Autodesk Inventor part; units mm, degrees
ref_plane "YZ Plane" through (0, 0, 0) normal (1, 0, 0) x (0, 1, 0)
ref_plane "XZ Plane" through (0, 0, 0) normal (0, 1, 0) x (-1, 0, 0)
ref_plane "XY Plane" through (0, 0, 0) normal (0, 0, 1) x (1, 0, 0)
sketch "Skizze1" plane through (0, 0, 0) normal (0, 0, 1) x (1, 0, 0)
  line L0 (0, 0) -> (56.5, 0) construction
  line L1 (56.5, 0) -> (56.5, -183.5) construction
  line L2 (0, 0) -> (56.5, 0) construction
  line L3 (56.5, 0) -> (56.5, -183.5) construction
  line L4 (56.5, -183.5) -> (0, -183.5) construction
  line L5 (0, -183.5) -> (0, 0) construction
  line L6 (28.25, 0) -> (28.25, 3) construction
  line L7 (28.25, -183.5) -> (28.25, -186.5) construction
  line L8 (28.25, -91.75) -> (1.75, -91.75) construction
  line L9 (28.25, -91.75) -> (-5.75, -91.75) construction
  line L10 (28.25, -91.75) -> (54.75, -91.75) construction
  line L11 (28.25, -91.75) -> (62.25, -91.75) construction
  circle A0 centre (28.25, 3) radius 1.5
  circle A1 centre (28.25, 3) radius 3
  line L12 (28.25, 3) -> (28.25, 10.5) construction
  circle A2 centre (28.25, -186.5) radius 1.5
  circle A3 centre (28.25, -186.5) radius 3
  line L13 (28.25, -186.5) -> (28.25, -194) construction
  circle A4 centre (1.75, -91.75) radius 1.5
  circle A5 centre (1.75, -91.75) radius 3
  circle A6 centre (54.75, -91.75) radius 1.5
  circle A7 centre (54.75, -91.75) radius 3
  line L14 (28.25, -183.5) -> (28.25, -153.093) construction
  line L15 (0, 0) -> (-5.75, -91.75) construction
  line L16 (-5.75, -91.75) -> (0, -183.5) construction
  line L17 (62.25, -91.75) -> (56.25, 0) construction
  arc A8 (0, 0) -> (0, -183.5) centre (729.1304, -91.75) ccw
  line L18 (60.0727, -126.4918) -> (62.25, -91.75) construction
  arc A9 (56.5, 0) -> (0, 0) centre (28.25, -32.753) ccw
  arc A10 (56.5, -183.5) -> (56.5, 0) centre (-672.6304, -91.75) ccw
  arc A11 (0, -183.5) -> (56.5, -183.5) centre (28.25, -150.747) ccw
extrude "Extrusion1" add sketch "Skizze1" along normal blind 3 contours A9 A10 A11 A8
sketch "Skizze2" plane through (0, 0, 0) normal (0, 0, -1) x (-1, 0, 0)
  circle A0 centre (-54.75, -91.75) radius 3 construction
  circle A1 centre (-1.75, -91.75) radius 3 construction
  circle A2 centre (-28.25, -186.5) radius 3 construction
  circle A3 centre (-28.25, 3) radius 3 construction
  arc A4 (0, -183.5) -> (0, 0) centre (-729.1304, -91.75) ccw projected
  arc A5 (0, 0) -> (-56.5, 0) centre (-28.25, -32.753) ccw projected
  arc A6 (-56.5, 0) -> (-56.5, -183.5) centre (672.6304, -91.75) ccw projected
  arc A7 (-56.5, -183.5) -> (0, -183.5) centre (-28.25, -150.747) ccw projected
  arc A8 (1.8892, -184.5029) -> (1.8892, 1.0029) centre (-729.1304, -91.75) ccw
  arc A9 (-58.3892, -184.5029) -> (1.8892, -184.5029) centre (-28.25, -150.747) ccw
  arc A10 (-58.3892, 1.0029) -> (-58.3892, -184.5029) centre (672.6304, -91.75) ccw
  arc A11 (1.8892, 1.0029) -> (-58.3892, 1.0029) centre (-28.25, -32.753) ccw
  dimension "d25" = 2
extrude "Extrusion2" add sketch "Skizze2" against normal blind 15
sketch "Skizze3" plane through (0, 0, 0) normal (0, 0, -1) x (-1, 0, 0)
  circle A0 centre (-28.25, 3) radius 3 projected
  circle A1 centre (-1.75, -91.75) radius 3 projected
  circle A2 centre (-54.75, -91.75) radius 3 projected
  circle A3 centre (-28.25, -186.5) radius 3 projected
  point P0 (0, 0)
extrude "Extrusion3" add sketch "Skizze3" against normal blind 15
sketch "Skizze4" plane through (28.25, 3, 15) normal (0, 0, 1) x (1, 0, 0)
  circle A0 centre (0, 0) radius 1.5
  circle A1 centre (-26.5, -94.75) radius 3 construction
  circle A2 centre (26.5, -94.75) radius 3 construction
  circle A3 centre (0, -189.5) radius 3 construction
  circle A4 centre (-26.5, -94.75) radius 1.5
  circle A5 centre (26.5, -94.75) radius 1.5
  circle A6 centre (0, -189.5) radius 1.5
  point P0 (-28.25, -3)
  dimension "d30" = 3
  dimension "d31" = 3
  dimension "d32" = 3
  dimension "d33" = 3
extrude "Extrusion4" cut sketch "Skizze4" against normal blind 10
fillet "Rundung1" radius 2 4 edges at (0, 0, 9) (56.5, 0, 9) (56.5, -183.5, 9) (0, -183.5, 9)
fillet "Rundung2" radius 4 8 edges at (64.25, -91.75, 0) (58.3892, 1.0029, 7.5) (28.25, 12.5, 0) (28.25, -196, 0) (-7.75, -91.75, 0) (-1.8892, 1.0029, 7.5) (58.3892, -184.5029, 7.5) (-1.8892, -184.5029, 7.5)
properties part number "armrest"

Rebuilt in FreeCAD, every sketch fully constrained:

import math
import FreeCAD as App
import Part
import Sketcher

V = App.Vector


def edges_at(feature, points):
    """Names of the edges that pass closest to the given points."""
    edges = feature.Shape.Edges
    near = lambda p: min(range(len(edges)), key=lambda i: edges[i].distToShape(Part.Vertex(*p))[0])
    return sorted({f"Edge{near(p) + 1}" for p in points})

doc = App.newDocument("Part")
body = doc.addObject("PartDesign::Body", "Body")

sketch1 = body.newObject("Sketcher::SketchObject", "Sketch")
sketch1.AttachmentSupport = (doc.getObject("XY_Plane"), [""])
sketch1.MapMode = "FlatFace"
sketch1.addGeometry([
    Part.ArcOfCircle(Part.Circle(V(28.2, -32.8, 0), V(0, 0, 1), 43.3), math.radians(49), math.radians(131)),
    Part.ArcOfCircle(Part.Circle(V(729.1, -91.8, 0), V(0, 0, 1), 734.9), math.radians(172.83), math.radians(187.17)),
    Part.ArcOfCircle(Part.Circle(V(28.2, -150.7, 0), V(0, 0, 1), 43.3), math.radians(-131), math.radians(-49)),
    Part.ArcOfCircle(Part.Circle(V(-672.6, -91.8, 0), V(0, 0, 1), 734.9), math.radians(-7.17), math.radians(7.17)),
    Part.Circle(V(28.2, -186.5, 0), V(0, 0, 1), 3),
    Part.Circle(V(1.8, -91.8, 0), V(0, 0, 1), 3),
    Part.Circle(V(54.8, -91.8, 0), V(0, 0, 1), 3),
    Part.Circle(V(28.2, 3, 0), V(0, 0, 1), 3),
], False)
sketch1.addConstraint([
    Sketcher.Constraint("Coincident", 0, 2, 1, 1),
    Sketcher.Constraint("Coincident", 1, 2, 2, 1),
    Sketcher.Constraint("Coincident", 2, 2, 3, 1),
    Sketcher.Constraint("Coincident", 3, 2, 0, 1),
    Sketcher.Constraint("Coincident", 0, 2, -1, 1),
    Sketcher.Constraint("Equal", 0, 2),
    Sketcher.Constraint("Equal", 1, 3),
    Sketcher.Constraint("Equal", 4, 5),
    Sketcher.Constraint("Equal", 5, 6),
    Sketcher.Constraint("Equal", 6, 7),
    Sketcher.Constraint("PointOnObject", 1, 2, -2),
    Sketcher.Constraint("PointOnObject", 3, 2, -1),
    Sketcher.Constraint("Horizontal", 1, 3, 3, 3),
    Sketcher.Constraint("Horizontal", 3, 3, 5, 3),
    Sketcher.Constraint("Horizontal", 5, 3, 6, 3),
    Sketcher.Constraint("Horizontal", 1, 2, 2, 2),
    Sketcher.Constraint("Vertical", 2, 3, 4, 3),
    Sketcher.Constraint("Vertical", 4, 3, 7, 3),
    Sketcher.Constraint("Diameter", 4, 6.0),
    Sketcher.Constraint("DistanceY", -1, 1, 7, 3, 3.0),
    Sketcher.Constraint("Radius", 0, 43.253),
    Sketcher.Constraint("DistanceX", 5, 3, 6, 3, 53.0),
    Sketcher.Constraint("DistanceY", 4, 3, 2, 2, 3.0),
    Sketcher.Constraint("DistanceY", 4, 3, -1, 1, 186.5),
    Sketcher.Constraint("DistanceX", -1, 1, 2, 2, 56.5),
    Sketcher.Constraint("Radius", 1, 734.8804),
    Sketcher.Constraint("DistanceX", 5, 3, 0, 3, 26.5),
])
pad1 = body.newObject("PartDesign::Pad", "Pad")
pad1.Profile = sketch1
pad1.Length = 3

sketch2 = body.newObject("Sketcher::SketchObject", "Sketch001")
sketch2.AttachmentSupport = (doc.getObject("XY_Plane"), [""])
sketch2.MapMode = "FlatFace"
sketch2.addGeometry([
    Part.ArcOfCircle(Part.Circle(V(28, -151, 0), V(0, 0, 1), 45), math.radians(-132), math.radians(-48)),
    Part.ArcOfCircle(Part.Circle(V(729, -92, 0), V(0, 0, 1), 737), math.radians(172.77), math.radians(187.23)),
    Part.ArcOfCircle(Part.Circle(V(28, -33, 0), V(0, 0, 1), 45), math.radians(48), math.radians(132)),
    Part.ArcOfCircle(Part.Circle(V(-673, -92, 0), V(0, 0, 1), 737), math.radians(-7.23), math.radians(7.23)),
    Part.ArcOfCircle(Part.Circle(V(729, -92, 0), V(0, 0, 1), 735), math.radians(172.83), math.radians(187.17)),
    Part.ArcOfCircle(Part.Circle(V(28, -151, 0), V(0, 0, 1), 43), math.radians(-131), math.radians(-49)),
    Part.ArcOfCircle(Part.Circle(V(-673, -92, 0), V(0, 0, 1), 735), math.radians(-7.17), math.radians(7.17)),
    Part.ArcOfCircle(Part.Circle(V(28, -33, 0), V(0, 0, 1), 43), math.radians(49), math.radians(131)),
], False)
sketch2.addConstraint([
    Sketcher.Constraint("Coincident", 0, 1, 1, 2),
    Sketcher.Constraint("Coincident", 1, 1, 2, 2),
    Sketcher.Constraint("Coincident", 2, 1, 3, 2),
    Sketcher.Constraint("Coincident", 3, 1, 0, 2),
    Sketcher.Constraint("Coincident", 4, 2, 5, 1),
    Sketcher.Constraint("Coincident", 5, 2, 6, 1),
    Sketcher.Constraint("Coincident", 6, 2, 7, 1),
    Sketcher.Constraint("Coincident", 7, 2, 4, 1),
    Sketcher.Constraint("Coincident", 7, 2, -1, 1),
    Sketcher.Constraint("Coincident", 4, 3, 1, 3),
    Sketcher.Constraint("Coincident", 5, 3, 0, 3),
    Sketcher.Constraint("Coincident", 6, 3, 3, 3),
    Sketcher.Constraint("Coincident", 7, 3, 2, 3),
    Sketcher.Constraint("Equal", 0, 2),
    Sketcher.Constraint("Equal", 1, 3),
    Sketcher.Constraint("Equal", 4, 6),
    Sketcher.Constraint("Equal", 5, 7),
    Sketcher.Constraint("PointOnObject", 4, 2, -2),
    Sketcher.Constraint("Horizontal", 1, 3, 3, 3),
    Sketcher.Constraint("Horizontal", 1, 1, 2, 1),
    Sketcher.Constraint("Vertical", 0, 3, 2, 3),
    Sketcher.Constraint("Radius", 0, 45.253),
    Sketcher.Constraint("Radius", 5, 43.253),
    Sketcher.Constraint("DistanceX", -1, 1, 5, 2, 56.5),
    Sketcher.Constraint("DistanceY", 5, 2, -1, 1, 183.5),
    Sketcher.Constraint("Radius", 1, 736.8804),
    Sketcher.Constraint("Radius", 4, 734.8804),
])
pad2 = body.newObject("PartDesign::Pad", "Pad001")
pad2.Profile = sketch2
pad2.Length = 15

sketch3 = body.newObject("Sketcher::SketchObject", "Sketch002")
sketch3.AttachmentSupport = (doc.getObject("XY_Plane"), [""])
sketch3.MapMode = "FlatFace"
sketch3.addGeometry([
    Part.Circle(V(28.2, 3, 0), V(0, 0, 1), 3),
    Part.Circle(V(1.8, -91.8, 0), V(0, 0, 1), 3),
    Part.Circle(V(54.8, -91.8, 0), V(0, 0, 1), 3),
    Part.Circle(V(28.2, -186.5, 0), V(0, 0, 1), 3),
], False)
sketch3.addConstraint([
    Sketcher.Constraint("Equal", 0, 1),
    Sketcher.Constraint("Equal", 1, 2),
    Sketcher.Constraint("Equal", 2, 3),
    Sketcher.Constraint("Horizontal", 1, 3, 2, 3),
    Sketcher.Constraint("Vertical", 0, 3, 3, 3),
    Sketcher.Constraint("Diameter", 0, 6.0),
    Sketcher.Constraint("DistanceY", -1, 1, 0, 3, 3.0),
    Sketcher.Constraint("DistanceX", 1, 3, 2, 3, 53.0),
    Sketcher.Constraint("DistanceY", 3, 3, -1, 1, 186.5),
    Sketcher.Constraint("DistanceX", 1, 3, 0, 3, 26.5),
    Sketcher.Constraint("DistanceX", -1, 1, 0, 3, 28.25),
    Sketcher.Constraint("DistanceY", 1, 3, -1, 1, 91.75),
])
pad3 = body.newObject("PartDesign::Pad", "Pad002")
pad3.Profile = sketch3
pad3.Length = 15

sketch4 = body.newObject("Sketcher::SketchObject", "Sketch003")
sketch4.AttachmentSupport = (doc.getObject("XY_Plane"), [""])
sketch4.MapMode = "FlatFace"
sketch4.AttachmentOffset = App.Placement(V(0, 0, 15), App.Rotation())
sketch4.addGeometry([
    Part.Circle(V(28.2, 3, 0), V(0, 0, 1), 1.5),
    Part.Circle(V(1.8, -91.8, 0), V(0, 0, 1), 1.5),
    Part.Circle(V(54.8, -91.8, 0), V(0, 0, 1), 1.5),
    Part.Circle(V(28.2, -186.5, 0), V(0, 0, 1), 1.5),
], False)
sketch4.addConstraint([
    Sketcher.Constraint("Equal", 0, 1),
    Sketcher.Constraint("Equal", 1, 2),
    Sketcher.Constraint("Equal", 2, 3),
    Sketcher.Constraint("Horizontal", 1, 3, 2, 3),
    Sketcher.Constraint("Vertical", 0, 3, 3, 3),
    Sketcher.Constraint("Diameter", 0, 3.0),
    Sketcher.Constraint("DistanceY", -1, 1, 0, 3, 3.0),
    Sketcher.Constraint("DistanceX", 1, 3, 2, 3, 53.0),
    Sketcher.Constraint("DistanceY", 3, 3, -1, 1, 186.5),
    Sketcher.Constraint("DistanceX", 1, 3, 0, 3, 26.5),
    Sketcher.Constraint("DistanceX", -1, 1, 0, 3, 28.25),
    Sketcher.Constraint("DistanceY", 1, 3, -1, 1, 91.75),
])
pocket1 = body.newObject("PartDesign::Pocket", "Pocket")
pocket1.Profile = sketch4
pocket1.Length = 10
doc.recompute()

fillet = body.newObject("PartDesign::Fillet", "Fillet")
fillet.Base = (pocket1, edges_at(pocket1, [
    (0, 0, 9),
    (56.5, 0, 9),
    (56.5, -183.5, 9),
    (0, -183.5, 9),
]))
fillet.Radius = 2
doc.recompute()

fillet2 = body.newObject("PartDesign::Fillet", "Fillet001")
fillet2.Base = (fillet, edges_at(fillet, [
    (64.25, -91.75, 0),
    (58.389, 1.003, 7.5),
    (28.25, 12.5, 0),
    (28.25, -196, 0),
    (-7.75, -91.75, 0),
    (-1.889, 1.003, 7.5),
    (58.389, -184.503, 7.5),
    (-1.889, -184.503, 7.5),
]))
fillet2.Radius = 4

doc.recompute()
